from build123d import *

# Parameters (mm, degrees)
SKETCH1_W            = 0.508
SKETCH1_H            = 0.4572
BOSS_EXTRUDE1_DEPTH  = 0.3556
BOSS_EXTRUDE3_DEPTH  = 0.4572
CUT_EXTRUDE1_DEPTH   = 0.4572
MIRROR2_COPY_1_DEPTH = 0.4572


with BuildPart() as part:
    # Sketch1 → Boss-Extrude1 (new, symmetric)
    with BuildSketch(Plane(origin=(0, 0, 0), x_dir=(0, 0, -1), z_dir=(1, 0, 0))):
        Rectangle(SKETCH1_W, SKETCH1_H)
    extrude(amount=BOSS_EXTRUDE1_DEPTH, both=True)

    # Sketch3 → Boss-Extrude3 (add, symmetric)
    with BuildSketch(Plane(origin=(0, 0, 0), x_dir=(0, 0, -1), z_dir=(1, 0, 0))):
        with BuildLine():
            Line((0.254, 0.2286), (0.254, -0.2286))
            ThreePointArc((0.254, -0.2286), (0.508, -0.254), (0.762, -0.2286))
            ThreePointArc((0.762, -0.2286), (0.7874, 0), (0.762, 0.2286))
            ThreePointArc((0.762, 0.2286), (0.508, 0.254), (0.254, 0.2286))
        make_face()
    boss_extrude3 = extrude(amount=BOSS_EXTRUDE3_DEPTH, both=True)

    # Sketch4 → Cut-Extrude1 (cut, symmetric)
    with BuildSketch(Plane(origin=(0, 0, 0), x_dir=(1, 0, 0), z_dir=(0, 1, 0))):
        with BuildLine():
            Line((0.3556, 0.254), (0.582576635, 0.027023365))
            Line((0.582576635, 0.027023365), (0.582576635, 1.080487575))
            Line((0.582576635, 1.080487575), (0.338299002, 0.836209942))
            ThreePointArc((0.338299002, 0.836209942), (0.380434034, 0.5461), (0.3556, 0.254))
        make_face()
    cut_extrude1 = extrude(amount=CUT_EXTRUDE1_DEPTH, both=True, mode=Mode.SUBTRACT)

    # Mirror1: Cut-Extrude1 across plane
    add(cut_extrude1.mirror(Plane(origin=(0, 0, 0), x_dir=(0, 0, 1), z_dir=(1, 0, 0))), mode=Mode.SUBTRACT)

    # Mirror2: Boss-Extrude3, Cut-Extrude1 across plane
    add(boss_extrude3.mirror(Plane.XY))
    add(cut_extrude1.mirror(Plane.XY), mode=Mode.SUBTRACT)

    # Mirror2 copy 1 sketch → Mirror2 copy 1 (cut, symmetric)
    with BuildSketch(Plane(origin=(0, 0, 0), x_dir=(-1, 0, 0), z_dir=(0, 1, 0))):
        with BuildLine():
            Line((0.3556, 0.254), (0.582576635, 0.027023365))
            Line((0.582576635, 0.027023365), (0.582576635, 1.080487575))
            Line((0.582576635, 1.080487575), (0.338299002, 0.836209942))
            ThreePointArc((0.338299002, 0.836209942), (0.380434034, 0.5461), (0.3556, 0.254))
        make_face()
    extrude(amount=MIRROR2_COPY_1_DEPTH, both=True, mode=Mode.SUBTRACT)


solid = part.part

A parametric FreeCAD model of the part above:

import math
import FreeCAD as App
import Part
import Sketcher

V = App.Vector
Q = App.Units.Quantity


def add_polygon(sketch, points):
    """Adds a closed chain of lines whose ends are joined by coincident constraints."""
    first, n = sketch.GeometryCount, len(points)
    for a, b in zip(points, points[1:] + points[:1]):
        sketch.addGeometry(Part.LineSegment(App.Vector(*a, 0), App.Vector(*b, 0)), False)
    for i in range(n):
        sketch.addConstraint(Sketcher.Constraint("Coincident", first + i, 2, first + (i + 1) % n, 1))

doc = App.newDocument("Part")
body = doc.addObject("PartDesign::Body", "Body")

# Sketch on YZ plane
sketch1 = doc.addObject("Sketcher::SketchObject", "Sketch")
body.addObject(sketch1)
sketch1.AttachmentSupport = (doc.YZ_Plane, [""])
sketch1.MapMode = "FlatFace"
add_polygon(sketch1, [(0.23, 0.25), (-0.23, 0.25), (-0.23, -0.25), (0.23, -0.25)])  # lines 0-3
sketch1.addConstraint([
    Sketcher.Constraint("Horizontal", 0),
    Sketcher.Constraint("Vertical", 1),
    Sketcher.Constraint("Horizontal", 2),
    Sketcher.Constraint("Vertical", 3),
    Sketcher.Constraint("Symmetric", 0, 2, 2, 2, -1, 1),
    Sketcher.Constraint("DistanceY", 1, 2, 1, 1, Q("0.02 in")),
    Sketcher.Constraint("DistanceX", 0, 2, 0, 1, Q("0.018 in")),
])
pad1 = doc.addObject("PartDesign::Pad", "Pad")
body.addObject(pad1)
pad1.Profile = sketch1
pad1.Length = Q("0.028 in")
pad1.Midplane = True

# Sketch on YZ plane
sketch2 = doc.addObject("Sketcher::SketchObject", "Sketch001")
body.addObject(sketch2)
sketch2.AttachmentSupport = (doc.YZ_Plane, [""])
sketch2.MapMode = "FlatFace"
sketch2.addGeometry([
    Part.LineSegment(V(0.23, -0.25, 0), V(-0.23, -0.25, 0)),
    Part.ArcOfCircle(Part.Circle(V(1.03, -0.51, 0), V(0, 0, 1), 1.28), math.radians(169), math.radians(191)),
    Part.ArcOfCircle(Part.Circle(V(0, 0.25, 0), V(0, 0, 1), 1.04), math.radians(-103), math.radians(-77)),
    Part.ArcOfCircle(Part.Circle(V(-1.03, -0.51, 0), V(0, 0, 1), 1.28), math.radians(-11), math.radians(11)),
], False)
sketch2.addConstraint([
    Sketcher.Constraint("Coincident", 0, 2, 1, 1),
    Sketcher.Constraint("Coincident", 1, 2, 2, 1),
    Sketcher.Constraint("Coincident", 2, 2, 3, 1),
    Sketcher.Constraint("Coincident", 3, 2, 0, 1),
    Sketcher.Constraint("Horizontal", 0),
    Sketcher.Constraint("Equal", 1, 3),
    Sketcher.Constraint("Symmetric", 1, 3, 3, 3, -2),
    Sketcher.Constraint("PointOnObject", 2, 3, -2),
    Sketcher.Constraint("Vertical", 0, 2, 1, 2),
    Sketcher.Constraint("Radius", 2, Q("0.041 in")),
    Sketcher.Constraint("Radius", 1, Q("0.0505 in")),
    Sketcher.Constraint("DistanceX", 0, 2, 0, 1, Q("0.018 in")),
    Sketcher.Constraint("DistanceY", 1, 3, -1, 1, Q("0.02 in")),
    Sketcher.Constraint("DistanceY", -1, 1, 2, 3, Q("0.01 in")),
])
pad2 = doc.addObject("PartDesign::Pad", "Pad001")
body.addObject(pad2)
pad2.Profile = sketch2
pad2.Length = Q("0.036 in")
pad2.Midplane = True

# Sketch on XZ plane
sketch3 = doc.addObject("Sketcher::SketchObject", "Sketch002")
body.addObject(sketch3)
sketch3.AttachmentSupport = (doc.XZ_Plane, [""])
sketch3.MapMode = "FlatFace"
sketch3.addGeometry([
    Part.LineSegment(V(0.36, -0.25, 0), V(0.58, -0.03, 0)),
    Part.LineSegment(V(0.58, -0.03, 0), V(0.58, -1.08, 0)),
    Part.LineSegment(V(0.58, -1.08, 0), V(0.34, -0.84, 0)),
    Part.ArcOfCircle(Part.Circle(V(-0.9, -0.51, 0), V(0, 0, 1), 1.28), math.radians(-15), math.radians(11)),
], False)
sketch3.addConstraint([
    Sketcher.Constraint("Coincident", 0, 2, 1, 1),
    Sketcher.Constraint("Coincident", 1, 2, 2, 1),
    Sketcher.Constraint("Coincident", 2, 2, 3, 1),
    Sketcher.Constraint("Coincident", 3, 2, 0, 1),
    Sketcher.Constraint("Vertical", 1),
    Sketcher.Constraint("Perpendicular", 0, 2),
    Sketcher.Constraint("Angle", 0, Q("45 deg")),
    Sketcher.Constraint("Radius", 3, Q("0.0505 in")),
    Sketcher.Constraint("DistanceY", 3, 3, -1, 1, Q("0.02 in")),
    Sketcher.Constraint("DistanceY", 3, 2, -1, 1, Q("0.01 in")),
    Sketcher.Constraint("DistanceX", -1, 1, 3, 2, Q("0.014 in")),
    Sketcher.Constraint("DistanceX", -1, 1, 2, 2, 0.338299),
    Sketcher.Constraint("Distance", 2, 0.345461),
])
pocket1 = doc.addObject("PartDesign::Pocket", "Pocket")
body.addObject(pocket1)
pocket1.Profile = sketch3
pocket1.Length = Q("0.036 in")
pocket1.Midplane = True
doc.recompute()

mirrored = doc.addObject("PartDesign::Mirrored", "Mirrored")
body.addObject(mirrored)
mirrored.Originals = [pocket1]
mirrored.MirrorPlane = (doc.YZ_Plane, [""])
body.Tip = mirrored
doc.recompute()

mirrored2 = doc.addObject("PartDesign::Mirrored", "Mirrored001")
body.addObject(mirrored2)
mirrored2.Originals = [pad2, pocket1]
mirrored2.MirrorPlane = (doc.XY_Plane, [""])
body.Tip = mirrored2

# Sketch on XZ plane
sketch4 = doc.addObject("Sketcher::SketchObject", "Sketch003")
body.addObject(sketch4)
sketch4.AttachmentSupport = (doc.XZ_Plane, [""])
sketch4.MapMode = "FlatFace"
sketch4.addGeometry([
    Part.LineSegment(V(-0.36, 0.25, 0), V(-0.58, 0.03, 0)),
    Part.LineSegment(V(-0.58, 0.03, 0), V(-0.58, 1.08, 0)),
    Part.LineSegment(V(-0.58, 1.08, 0), V(-0.34, 0.84, 0)),
    Part.ArcOfCircle(Part.Circle(V(0.9, 0.51, 0), V(0, 0, 1), 1.28), math.radians(165), math.radians(191)),
], False)
sketch4.addConstraint([
    Sketcher.Constraint("Coincident", 0, 2, 1, 1),
    Sketcher.Constraint("Coincident", 1, 2, 2, 1),
    Sketcher.Constraint("Coincident", 2, 2, 3, 1),
    Sketcher.Constraint("Coincident", 3, 2, 0, 1),
    Sketcher.Constraint("Vertical", 1),
    Sketcher.Constraint("Perpendicular", 0, 2),
    Sketcher.Constraint("Angle", 0, Q("-135 deg")),
    Sketcher.Constraint("Radius", 3, Q("0.0505 in")),
    Sketcher.Constraint("DistanceY", -1, 1, 3, 3, Q("0.02 in")),
    Sketcher.Constraint("DistanceY", -1, 1, 3, 2, Q("0.01 in")),
    Sketcher.Constraint("DistanceX", 3, 2, -1, 1, Q("0.014 in")),
    Sketcher.Constraint("DistanceX", 2, 2, -1, 1, 0.338299),
    Sketcher.Constraint("Distance", 2, 0.345461),
])
pocket2 = doc.addObject("PartDesign::Pocket", "Pocket001")
body.addObject(pocket2)
pocket2.Profile = sketch4
pocket2.Length = Q("0.036 in")
pocket2.Midplane = True

doc.recompute()
